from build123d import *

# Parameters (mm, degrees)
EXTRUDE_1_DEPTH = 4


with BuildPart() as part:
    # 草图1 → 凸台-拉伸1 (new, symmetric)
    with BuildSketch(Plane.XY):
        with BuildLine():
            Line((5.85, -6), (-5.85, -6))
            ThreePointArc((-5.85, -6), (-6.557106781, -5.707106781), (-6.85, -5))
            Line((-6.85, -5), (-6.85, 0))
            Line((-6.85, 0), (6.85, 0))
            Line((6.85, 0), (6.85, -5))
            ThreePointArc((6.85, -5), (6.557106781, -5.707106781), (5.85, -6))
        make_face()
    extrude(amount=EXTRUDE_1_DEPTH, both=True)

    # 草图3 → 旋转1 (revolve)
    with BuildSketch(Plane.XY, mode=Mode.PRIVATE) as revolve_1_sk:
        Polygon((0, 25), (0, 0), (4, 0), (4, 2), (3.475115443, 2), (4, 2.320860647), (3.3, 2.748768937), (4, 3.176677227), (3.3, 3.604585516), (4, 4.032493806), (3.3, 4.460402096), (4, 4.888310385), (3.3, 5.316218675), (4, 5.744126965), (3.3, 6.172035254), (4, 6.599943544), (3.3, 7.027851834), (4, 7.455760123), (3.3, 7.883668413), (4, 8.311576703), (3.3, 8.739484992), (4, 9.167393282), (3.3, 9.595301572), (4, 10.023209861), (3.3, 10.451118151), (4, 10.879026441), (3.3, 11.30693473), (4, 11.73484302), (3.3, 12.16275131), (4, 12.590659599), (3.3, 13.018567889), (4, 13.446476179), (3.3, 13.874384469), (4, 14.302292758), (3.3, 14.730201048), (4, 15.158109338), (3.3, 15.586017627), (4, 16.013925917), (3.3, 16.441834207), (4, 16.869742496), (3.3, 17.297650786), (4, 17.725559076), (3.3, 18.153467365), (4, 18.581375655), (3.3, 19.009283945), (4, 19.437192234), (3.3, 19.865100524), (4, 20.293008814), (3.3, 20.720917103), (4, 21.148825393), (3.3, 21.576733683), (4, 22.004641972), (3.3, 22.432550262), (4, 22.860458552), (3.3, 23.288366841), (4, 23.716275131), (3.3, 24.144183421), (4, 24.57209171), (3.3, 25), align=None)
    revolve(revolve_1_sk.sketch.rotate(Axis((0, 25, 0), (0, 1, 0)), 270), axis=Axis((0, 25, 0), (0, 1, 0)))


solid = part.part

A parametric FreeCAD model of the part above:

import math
import FreeCAD as App
import Part
import Sketcher
from FreeCAD import Vector

doc = App.newDocument("Part")
body = doc.addObject("PartDesign::Body", "Body")

# Sketch on XY plane
sketch1 = body.newObject("Sketcher::SketchObject", "Sketch")
sketch1.AttachmentSupport = (doc.getObject("XY_Plane"), [""])
sketch1.MapMode = "FlatFace"
sketch1.addGeometry([
    Part.LineSegment(Vector(-5.8, -6, 0), Vector(5.8, -6, 0)),  # 0
    Part.ArcOfCircle(Part.Circle(Vector(5.8, -5, 0), Vector(0, 0, 1), 1), math.radians(-90), math.radians(0)),  # 1
    Part.LineSegment(Vector(6.8, -5, 0), Vector(6.8, 0, 0)),  # 2
    Part.LineSegment(Vector(6.8, 0, 0), Vector(-6.8, 0, 0)),  # 3
    Part.LineSegment(Vector(-6.8, 0, 0), Vector(-6.8, -5, 0)),  # 4
    Part.ArcOfCircle(Part.Circle(Vector(-5.8, -5, 0), Vector(0, 0, 1), 1), math.radians(-180), math.radians(-90)),  # 5
], False)
sketch1.addConstraint([
    Sketcher.Constraint("Tangent", 0, 2, 1, 1),
    Sketcher.Constraint("Tangent", 1, 2, 2, 1),
    Sketcher.Constraint("Coincident", 2, 2, 3, 1),
    Sketcher.Constraint("Coincident", 3, 2, 4, 1),
    Sketcher.Constraint("Tangent", 4, 2, 5, 1),
    Sketcher.Constraint("Tangent", 5, 2, 0, 1),
    Sketcher.Constraint("Horizontal", 0),
    Sketcher.Constraint("Vertical", 2),
    Sketcher.Constraint("Horizontal", 3),
    Sketcher.Constraint("Vertical", 4),
    Sketcher.Constraint("Equal", 1, 5),
    Sketcher.Constraint("Symmetric", 2, 2, 3, 2, -1, 1),
    Sketcher.Constraint("Radius", 1, 1.0),
    Sketcher.Constraint("DistanceY", 2, 1, 2, 2, 5.0),
    Sketcher.Constraint("DistanceX", 0, 1, 0, 2, 11.7),
])
pad1 = body.newObject("PartDesign::Pad", "Pad")
pad1.Profile = sketch1
pad1.Length = 8
pad1.Midplane = True

# Sketch on XY plane
sketch2 = body.newObject("Sketcher::SketchObject", "Sketch001")
sketch2.AttachmentSupport = (doc.getObject("XY_Plane"), [""])
sketch2.MapMode = "FlatFace"
sketch2.addGeometry([
    Part.LineSegment(Vector(0, 25, 0), Vector(0, 0, 0)),  # 0
    Part.LineSegment(Vector(0, 0, 0), Vector(4, 0, 0)),  # 1
    Part.LineSegment(Vector(4, 0, 0), Vector(4, 2, 0)),  # 2
    Part.LineSegment(Vector(4, 2, 0), Vector(3.5, 2, 0)),  # 3
    Part.LineSegment(Vector(3.5, 2, 0), Vector(4, 2.3, 0)),  # 4
    Part.LineSegment(Vector(4, 2.3, 0), Vector(3.3, 2.7, 0)),  # 5
    Part.LineSegment(Vector(3.3, 2.7, 0), Vector(4, 3.2, 0)),  # 6
    Part.LineSegment(Vector(4, 3.2, 0), Vector(3.3, 3.6, 0)),  # 7
    Part.LineSegment(Vector(3.3, 3.6, 0), Vector(4, 4, 0)),  # 8
    Part.LineSegment(Vector(4, 4, 0), Vector(3.3, 4.5, 0)),  # 9
    Part.LineSegment(Vector(3.3, 4.5, 0), Vector(4, 4.9, 0)),  # 10
    Part.LineSegment(Vector(4, 4.9, 0), Vector(3.3, 5.3, 0)),  # 11
    Part.LineSegment(Vector(3.3, 5.3, 0), Vector(4, 5.7, 0)),  # 12
    Part.LineSegment(Vector(4, 5.7, 0), Vector(3.3, 6.2, 0)),  # 13
    Part.LineSegment(Vector(3.3, 6.2, 0), Vector(4, 6.6, 0)),  # 14
    Part.LineSegment(Vector(4, 6.6, 0), Vector(3.3, 7, 0)),  # 15
    Part.LineSegment(Vector(3.3, 7, 0), Vector(4, 7.5, 0)),  # 16
    Part.LineSegment(Vector(4, 7.5, 0), Vector(3.3, 7.9, 0)),  # 17
    Part.LineSegment(Vector(3.3, 7.9, 0), Vector(4, 8.3, 0)),  # 18
    Part.LineSegment(Vector(4, 8.3, 0), Vector(3.3, 8.7, 0)),  # 19
    Part.LineSegment(Vector(3.3, 8.7, 0), Vector(4, 9.2, 0)),  # 20
    Part.LineSegment(Vector(4, 9.2, 0), Vector(3.3, 9.6, 0)),  # 21
    Part.LineSegment(Vector(3.3, 9.6, 0), Vector(4, 10, 0)),  # 22
    Part.LineSegment(Vector(4, 10, 0), Vector(3.3, 10.5, 0)),  # 23
    Part.LineSegment(Vector(3.3, 10.5, 0), Vector(4, 10.9, 0)),  # 24
    Part.LineSegment(Vector(4, 10.9, 0), Vector(3.3, 11.3, 0)),  # 25
    Part.LineSegment(Vector(3.3, 11.3, 0), Vector(4, 11.7, 0)),  # 26
    Part.LineSegment(Vector(4, 11.7, 0), Vector(3.3, 12.2, 0)),  # 27
    Part.LineSegment(Vector(3.3, 12.2, 0), Vector(4, 12.6, 0)),  # 28
    Part.LineSegment(Vector(4, 12.6, 0), Vector(3.3, 13, 0)),  # 29
    Part.LineSegment(Vector(3.3, 13, 0), Vector(4, 13.4, 0)),  # 30
    Part.LineSegment(Vector(4, 13.4, 0), Vector(3.3, 13.9, 0)),  # 31
    Part.LineSegment(Vector(3.3, 13.9, 0), Vector(4, 14.3, 0)),  # 32
    Part.LineSegment(Vector(4, 14.3, 0), Vector(3.3, 14.7, 0)),  # 33
    Part.LineSegment(Vector(3.3, 14.7, 0), Vector(4, 15.2, 0)),  # 34
    Part.LineSegment(Vector(4, 15.2, 0), Vector(3.3, 15.6, 0)),  # 35
    Part.LineSegment(Vector(3.3, 15.6, 0), Vector(4, 16, 0)),  # 36
    Part.LineSegment(Vector(4, 16, 0), Vector(3.3, 16.4, 0)),  # 37
    Part.LineSegment(Vector(3.3, 16.4, 0), Vector(4, 16.9, 0)),  # 38
    Part.LineSegment(Vector(4, 16.9, 0), Vector(3.3, 17.3, 0)),  # 39
    Part.LineSegment(Vector(3.3, 17.3, 0), Vector(4, 17.7, 0)),  # 40
    Part.LineSegment(Vector(4, 17.7, 0), Vector(3.3, 18.2, 0)),  # 41
    Part.LineSegment(Vector(3.3, 18.2, 0), Vector(4, 18.6, 0)),  # 42
    Part.LineSegment(Vector(4, 18.6, 0), Vector(3.3, 19, 0)),  # 43
    Part.LineSegment(Vector(3.3, 19, 0), Vector(4, 19.4, 0)),  # 44
    Part.LineSegment(Vector(4, 19.4, 0), Vector(3.3, 19.9, 0)),  # 45
    Part.LineSegment(Vector(3.3, 19.9, 0), Vector(4, 20.3, 0)),  # 46
    Part.LineSegment(Vector(4, 20.3, 0), Vector(3.3, 20.7, 0)),  # 47
    Part.LineSegment(Vector(3.3, 20.7, 0), Vector(4, 21.1, 0)),  # 48
    Part.LineSegment(Vector(4, 21.1, 0), Vector(3.3, 21.6, 0)),  # 49
    Part.LineSegment(Vector(3.3, 21.6, 0), Vector(4, 22, 0)),  # 50
    Part.LineSegment(Vector(4, 22, 0), Vector(3.3, 22.4, 0)),  # 51
    Part.LineSegment(Vector(3.3, 22.4, 0), Vector(4, 22.9, 0)),  # 52
    Part.LineSegment(Vector(4, 22.9, 0), Vector(3.3, 23.3, 0)),  # 53
    Part.LineSegment(Vector(3.3, 23.3, 0), Vector(4, 23.7, 0)),  # 54
    Part.LineSegment(Vector(4, 23.7, 0), Vector(3.3, 24.1, 0)),  # 55
    Part.LineSegment(Vector(3.3, 24.1, 0), Vector(4, 24.6, 0)),  # 56
    Part.LineSegment(Vector(4, 24.6, 0), Vector(3.3, 25, 0)),  # 57
    Part.LineSegment(Vector(3.3, 25, 0), Vector(0, 25, 0)),  # 58
], False)
sketch2.addConstraint([
    Sketcher.Constraint("Coincident", 0, 2, 1, 1),
    Sketcher.Constraint("Coincident", 1, 2, 2, 1),
    Sketcher.Constraint("Coincident", 2, 2, 3, 1),
    Sketcher.Constraint("Coincident", 3, 2, 4, 1),
    Sketcher.Constraint("Coincident", 4, 2, 5, 1),
    Sketcher.Constraint("Coincident", 5, 2, 6, 1),
    Sketcher.Constraint("Coincident", 6, 2, 7, 1),
    Sketcher.Constraint("Coincident", 7, 2, 8, 1),
    Sketcher.Constraint("Coincident", 8, 2, 9, 1),
    Sketcher.Constraint("Coincident", 9, 2, 10, 1),
    Sketcher.Constraint("Coincident", 10, 2, 11, 1),
    Sketcher.Constraint("Coincident", 11, 2, 12, 1),
    Sketcher.Constraint("Coincident", 12, 2, 13, 1),
    Sketcher.Constraint("Coincident", 13, 2, 14, 1),
    Sketcher.Constraint("Coincident", 14, 2, 15, 1),
    Sketcher.Constraint("Coincident", 15, 2, 16, 1),
    Sketcher.Constraint("Coincident", 16, 2, 17, 1),
    Sketcher.Constraint("Coincident", 17, 2, 18, 1),
    Sketcher.Constraint("Coincident", 18, 2, 19, 1),
    Sketcher.Constraint("Coincident", 19, 2, 20, 1),
    Sketcher.Constraint("Coincident", 20, 2, 21, 1),
    Sketcher.Constraint("Coincident", 21, 2, 22, 1),
    Sketcher.Constraint("Coincident", 22, 2, 23, 1),
    Sketcher.Constraint("Coincident", 23, 2, 24, 1),
    Sketcher.Constraint("Coincident", 24, 2, 25, 1),
    Sketcher.Constraint("Coincident", 25, 2, 26, 1),
    Sketcher.Constraint("Coincident", 26, 2, 27, 1),
    Sketcher.Constraint("Coincident", 27, 2, 28, 1),
    Sketcher.Constraint("Coincident", 28, 2, 29, 1),
    Sketcher.Constraint("Coincident", 29, 2, 30, 1),
    Sketcher.Constraint("Coincident", 30, 2, 31, 1),
    Sketcher.Constraint("Coincident", 31, 2, 32, 1),
    Sketcher.Constraint("Coincident", 32, 2, 33, 1),
    Sketcher.Constraint("Coincident", 33, 2, 34, 1),
    Sketcher.Constraint("Coincident", 34, 2, 35, 1),
    Sketcher.Constraint("Coincident", 35, 2, 36, 1),
    Sketcher.Constraint("Coincident", 36, 2, 37, 1),
    Sketcher.Constraint("Coincident", 37, 2, 38, 1),
    Sketcher.Constraint("Coincident", 38, 2, 39, 1),
    Sketcher.Constraint("Coincident", 39, 2, 40, 1),
    Sketcher.Constraint("Coincident", 40, 2, 41, 1),
    Sketcher.Constraint("Coincident", 41, 2, 42, 1),
    Sketcher.Constraint("Coincident", 42, 2, 43, 1),
    Sketcher.Constraint("Coincident", 43, 2, 44, 1),
    Sketcher.Constraint("Coincident", 44, 2, 45, 1),
    Sketcher.Constraint("Coincident", 45, 2, 46, 1),
    Sketcher.Constraint("Coincident", 46, 2, 47, 1),
    Sketcher.Constraint("Coincident", 47, 2, 48, 1),
    Sketcher.Constraint("Coincident", 48, 2, 49, 1),
    Sketcher.Constraint("Coincident", 49, 2, 50, 1),
    Sketcher.Constraint("Coincident", 50, 2, 51, 1),
    Sketcher.Constraint("Coincident", 51, 2, 52, 1),
    Sketcher.Constraint("Coincident", 52, 2, 53, 1),
    Sketcher.Constraint("Coincident", 53, 2, 54, 1),
    Sketcher.Constraint("Coincident", 54, 2, 55, 1),
    Sketcher.Constraint("Coincident", 55, 2, 56, 1),
    Sketcher.Constraint("Coincident", 56, 2, 57, 1),
    Sketcher.Constraint("Coincident", 57, 2, 58, 1),
    Sketcher.Constraint("Coincident", 58, 2, 0, 1),
    Sketcher.Constraint("Vertical", 0),
    Sketcher.Constraint("Horizontal", 1),
    Sketcher.Constraint("Vertical", 2),
    Sketcher.Constraint("Horizontal", 3),
    Sketcher.Constraint("Horizontal", 58),
    Sketcher.Constraint("Coincident", 0, 2, -1, 1),
    Sketcher.Constraint("Parallel", 4, 6),
    Sketcher.Constraint("Parallel", 5, 7),
    Sketcher.Constraint("Parallel", 6, 8),
    Sketcher.Constraint("Parallel", 7, 9),
    Sketcher.Constraint("Parallel", 8, 10),
    Sketcher.Constraint("Parallel", 9, 11),
    Sketcher.Constraint("Parallel", 10, 12),
    Sketcher.Constraint("Parallel", 11, 13),
    Sketcher.Constraint("Parallel", 12, 14),
    Sketcher.Constraint("Parallel", 13, 15),
    Sketcher.Constraint("Parallel", 14, 16),
    Sketcher.Constraint("Parallel", 15, 17),
    Sketcher.Constraint("Parallel", 16, 18),
    Sketcher.Constraint("Parallel", 17, 19),
    Sketcher.Constraint("Parallel", 18, 20),
    Sketcher.Constraint("Parallel", 19, 21),
    Sketcher.Constraint("Parallel", 20, 22),
    Sketcher.Constraint("Parallel", 21, 23),
    Sketcher.Constraint("Parallel", 22, 24),
    Sketcher.Constraint("Parallel", 23, 25),
    Sketcher.Constraint("Parallel", 24, 26),
    Sketcher.Constraint("Parallel", 25, 27),
    Sketcher.Constraint("Parallel", 26, 28),
    Sketcher.Constraint("Parallel", 27, 29),
    Sketcher.Constraint("Parallel", 28, 30),
    Sketcher.Constraint("Parallel", 29, 31),
    Sketcher.Constraint("Parallel", 30, 32),
    Sketcher.Constraint("Parallel", 31, 33),
    Sketcher.Constraint("Parallel", 32, 34),
    Sketcher.Constraint("Parallel", 33, 35),
    Sketcher.Constraint("Parallel", 34, 36),
    Sketcher.Constraint("Parallel", 35, 37),
    Sketcher.Constraint("Parallel", 36, 38),
    Sketcher.Constraint("Parallel", 37, 39),
    Sketcher.Constraint("Parallel", 38, 40),
    Sketcher.Constraint("Parallel", 39, 41),
    Sketcher.Constraint("Parallel", 40, 42),
    Sketcher.Constraint("Parallel", 41, 43),
    Sketcher.Constraint("Parallel", 42, 44),
    Sketcher.Constraint("Parallel", 43, 45),
    Sketcher.Constraint("Parallel", 44, 46),
    Sketcher.Constraint("Parallel", 45, 47),
    Sketcher.Constraint("Parallel", 46, 48),
    Sketcher.Constraint("Parallel", 47, 49),
    Sketcher.Constraint("Parallel", 48, 50),
    Sketcher.Constraint("Parallel", 49, 51),
    Sketcher.Constraint("Parallel", 50, 52),
    Sketcher.Constraint("Parallel", 51, 53),
    Sketcher.Constraint("Parallel", 52, 54),
    Sketcher.Constraint("Parallel", 53, 55),
    Sketcher.Constraint("Parallel", 54, 56),
    Sketcher.Constraint("Parallel", 55, 57),
    Sketcher.Constraint("Vertical", 2, 2, 4, 2),
    Sketcher.Constraint("Vertical", 4, 2, 6, 2),
    Sketcher.Constraint("Vertical", 5, 2, 7, 2),
    Sketcher.Constraint("Vertical", 6, 2, 8, 2),
    Sketcher.Constraint("Vertical", 7, 2, 9, 2),
    Sketcher.Constraint("Vertical", 8, 2, 10, 2),
    Sketcher.Constraint("Vertical", 9, 2, 11, 2),
    Sketcher.Constraint("Vertical", 10, 2, 12, 2),
    Sketcher.Constraint("Vertical", 11, 2, 13, 2),
    Sketcher.Constraint("Vertical", 12, 2, 14, 2),
    Sketcher.Constraint("Vertical", 13, 2, 15, 2),
    Sketcher.Constraint("Vertical", 14, 2, 16, 2),
    Sketcher.Constraint("Vertical", 15, 2, 17, 2),
    Sketcher.Constraint("Vertical", 16, 2, 18, 2),
    Sketcher.Constraint("Vertical", 17, 2, 19, 2),
    Sketcher.Constraint("Vertical", 18, 2, 20, 2),
    Sketcher.Constraint("Vertical", 19, 2, 21, 2),
    Sketcher.Constraint("Vertical", 20, 2, 22, 2),
    Sketcher.Constraint("Vertical", 21, 2, 23, 2),
    Sketcher.Constraint("Vertical", 22, 2, 24, 2),
    Sketcher.Constraint("Vertical", 23, 2, 25, 2),
    Sketcher.Constraint("Vertical", 24, 2, 26, 2),
    Sketcher.Constraint("Vertical", 25, 2, 27, 2),
    Sketcher.Constraint("Vertical", 26, 2, 28, 2),
    Sketcher.Constraint("Vertical", 27, 2, 29, 2),
    Sketcher.Constraint("Vertical", 28, 2, 30, 2),
    Sketcher.Constraint("Vertical", 29, 2, 31, 2),
    Sketcher.Constraint("Vertical", 30, 2, 32, 2),
    Sketcher.Constraint("Vertical", 31, 2, 33, 2),
    Sketcher.Constraint("Vertical", 32, 2, 34, 2),
    Sketcher.Constraint("Vertical", 33, 2, 35, 2),
    Sketcher.Constraint("Vertical", 34, 2, 36, 2),
    Sketcher.Constraint("Vertical", 35, 2, 37, 2),
    Sketcher.Constraint("Vertical", 36, 2, 38, 2),
    Sketcher.Constraint("Vertical", 37, 2, 39, 2),
    Sketcher.Constraint("Vertical", 38, 2, 40, 2),
    Sketcher.Constraint("Vertical", 39, 2, 41, 2),
    Sketcher.Constraint("Vertical", 40, 2, 42, 2),
    Sketcher.Constraint("Vertical", 41, 2, 43, 2),
    Sketcher.Constraint("Vertical", 42, 2, 44, 2),
    Sketcher.Constraint("Vertical", 43, 2, 45, 2),
    Sketcher.Constraint("Vertical", 44, 2, 46, 2),
    Sketcher.Constraint("Vertical", 45, 2, 47, 2),
    Sketcher.Constraint("Vertical", 46, 2, 48, 2),
    Sketcher.Constraint("Vertical", 47, 2, 49, 2),
    Sketcher.Constraint("Vertical", 48, 2, 50, 2),
    Sketcher.Constraint("Vertical", 49, 2, 51, 2),
    Sketcher.Constraint("Vertical", 50, 2, 52, 2),
    Sketcher.Constraint("Vertical", 51, 2, 53, 2),
    Sketcher.Constraint("Vertical", 52, 2, 54, 2),
    Sketcher.Constraint("Vertical", 53, 2, 55, 2),
    Sketcher.Constraint("Vertical", 54, 2, 56, 2),
    Sketcher.Constraint("Vertical", 55, 2, 57, 2),
    Sketcher.Constraint("Equal", 5, 6),
    Sketcher.Constraint("DistanceX", 1, 1, 1, 2, 4.0),
    Sketcher.Constraint("DistanceY", 0, 2, 0, 1, 25.0),
    Sketcher.Constraint("DistanceY", 2, 1, 2, 2, 2.0),
    Sketcher.Constraint("DistanceX", 58, 2, 58, 1, 3.3),
    Sketcher.Constraint("DistanceY", -1, 1, 21, 2, 9.595302),
])
revolution = body.newObject("PartDesign::Revolution", "Revolution")
revolution.Profile = sketch2
revolution.ReferenceAxis = (sketch2, ["V_Axis"])
revolution.Angle = 360

doc.recompute()
